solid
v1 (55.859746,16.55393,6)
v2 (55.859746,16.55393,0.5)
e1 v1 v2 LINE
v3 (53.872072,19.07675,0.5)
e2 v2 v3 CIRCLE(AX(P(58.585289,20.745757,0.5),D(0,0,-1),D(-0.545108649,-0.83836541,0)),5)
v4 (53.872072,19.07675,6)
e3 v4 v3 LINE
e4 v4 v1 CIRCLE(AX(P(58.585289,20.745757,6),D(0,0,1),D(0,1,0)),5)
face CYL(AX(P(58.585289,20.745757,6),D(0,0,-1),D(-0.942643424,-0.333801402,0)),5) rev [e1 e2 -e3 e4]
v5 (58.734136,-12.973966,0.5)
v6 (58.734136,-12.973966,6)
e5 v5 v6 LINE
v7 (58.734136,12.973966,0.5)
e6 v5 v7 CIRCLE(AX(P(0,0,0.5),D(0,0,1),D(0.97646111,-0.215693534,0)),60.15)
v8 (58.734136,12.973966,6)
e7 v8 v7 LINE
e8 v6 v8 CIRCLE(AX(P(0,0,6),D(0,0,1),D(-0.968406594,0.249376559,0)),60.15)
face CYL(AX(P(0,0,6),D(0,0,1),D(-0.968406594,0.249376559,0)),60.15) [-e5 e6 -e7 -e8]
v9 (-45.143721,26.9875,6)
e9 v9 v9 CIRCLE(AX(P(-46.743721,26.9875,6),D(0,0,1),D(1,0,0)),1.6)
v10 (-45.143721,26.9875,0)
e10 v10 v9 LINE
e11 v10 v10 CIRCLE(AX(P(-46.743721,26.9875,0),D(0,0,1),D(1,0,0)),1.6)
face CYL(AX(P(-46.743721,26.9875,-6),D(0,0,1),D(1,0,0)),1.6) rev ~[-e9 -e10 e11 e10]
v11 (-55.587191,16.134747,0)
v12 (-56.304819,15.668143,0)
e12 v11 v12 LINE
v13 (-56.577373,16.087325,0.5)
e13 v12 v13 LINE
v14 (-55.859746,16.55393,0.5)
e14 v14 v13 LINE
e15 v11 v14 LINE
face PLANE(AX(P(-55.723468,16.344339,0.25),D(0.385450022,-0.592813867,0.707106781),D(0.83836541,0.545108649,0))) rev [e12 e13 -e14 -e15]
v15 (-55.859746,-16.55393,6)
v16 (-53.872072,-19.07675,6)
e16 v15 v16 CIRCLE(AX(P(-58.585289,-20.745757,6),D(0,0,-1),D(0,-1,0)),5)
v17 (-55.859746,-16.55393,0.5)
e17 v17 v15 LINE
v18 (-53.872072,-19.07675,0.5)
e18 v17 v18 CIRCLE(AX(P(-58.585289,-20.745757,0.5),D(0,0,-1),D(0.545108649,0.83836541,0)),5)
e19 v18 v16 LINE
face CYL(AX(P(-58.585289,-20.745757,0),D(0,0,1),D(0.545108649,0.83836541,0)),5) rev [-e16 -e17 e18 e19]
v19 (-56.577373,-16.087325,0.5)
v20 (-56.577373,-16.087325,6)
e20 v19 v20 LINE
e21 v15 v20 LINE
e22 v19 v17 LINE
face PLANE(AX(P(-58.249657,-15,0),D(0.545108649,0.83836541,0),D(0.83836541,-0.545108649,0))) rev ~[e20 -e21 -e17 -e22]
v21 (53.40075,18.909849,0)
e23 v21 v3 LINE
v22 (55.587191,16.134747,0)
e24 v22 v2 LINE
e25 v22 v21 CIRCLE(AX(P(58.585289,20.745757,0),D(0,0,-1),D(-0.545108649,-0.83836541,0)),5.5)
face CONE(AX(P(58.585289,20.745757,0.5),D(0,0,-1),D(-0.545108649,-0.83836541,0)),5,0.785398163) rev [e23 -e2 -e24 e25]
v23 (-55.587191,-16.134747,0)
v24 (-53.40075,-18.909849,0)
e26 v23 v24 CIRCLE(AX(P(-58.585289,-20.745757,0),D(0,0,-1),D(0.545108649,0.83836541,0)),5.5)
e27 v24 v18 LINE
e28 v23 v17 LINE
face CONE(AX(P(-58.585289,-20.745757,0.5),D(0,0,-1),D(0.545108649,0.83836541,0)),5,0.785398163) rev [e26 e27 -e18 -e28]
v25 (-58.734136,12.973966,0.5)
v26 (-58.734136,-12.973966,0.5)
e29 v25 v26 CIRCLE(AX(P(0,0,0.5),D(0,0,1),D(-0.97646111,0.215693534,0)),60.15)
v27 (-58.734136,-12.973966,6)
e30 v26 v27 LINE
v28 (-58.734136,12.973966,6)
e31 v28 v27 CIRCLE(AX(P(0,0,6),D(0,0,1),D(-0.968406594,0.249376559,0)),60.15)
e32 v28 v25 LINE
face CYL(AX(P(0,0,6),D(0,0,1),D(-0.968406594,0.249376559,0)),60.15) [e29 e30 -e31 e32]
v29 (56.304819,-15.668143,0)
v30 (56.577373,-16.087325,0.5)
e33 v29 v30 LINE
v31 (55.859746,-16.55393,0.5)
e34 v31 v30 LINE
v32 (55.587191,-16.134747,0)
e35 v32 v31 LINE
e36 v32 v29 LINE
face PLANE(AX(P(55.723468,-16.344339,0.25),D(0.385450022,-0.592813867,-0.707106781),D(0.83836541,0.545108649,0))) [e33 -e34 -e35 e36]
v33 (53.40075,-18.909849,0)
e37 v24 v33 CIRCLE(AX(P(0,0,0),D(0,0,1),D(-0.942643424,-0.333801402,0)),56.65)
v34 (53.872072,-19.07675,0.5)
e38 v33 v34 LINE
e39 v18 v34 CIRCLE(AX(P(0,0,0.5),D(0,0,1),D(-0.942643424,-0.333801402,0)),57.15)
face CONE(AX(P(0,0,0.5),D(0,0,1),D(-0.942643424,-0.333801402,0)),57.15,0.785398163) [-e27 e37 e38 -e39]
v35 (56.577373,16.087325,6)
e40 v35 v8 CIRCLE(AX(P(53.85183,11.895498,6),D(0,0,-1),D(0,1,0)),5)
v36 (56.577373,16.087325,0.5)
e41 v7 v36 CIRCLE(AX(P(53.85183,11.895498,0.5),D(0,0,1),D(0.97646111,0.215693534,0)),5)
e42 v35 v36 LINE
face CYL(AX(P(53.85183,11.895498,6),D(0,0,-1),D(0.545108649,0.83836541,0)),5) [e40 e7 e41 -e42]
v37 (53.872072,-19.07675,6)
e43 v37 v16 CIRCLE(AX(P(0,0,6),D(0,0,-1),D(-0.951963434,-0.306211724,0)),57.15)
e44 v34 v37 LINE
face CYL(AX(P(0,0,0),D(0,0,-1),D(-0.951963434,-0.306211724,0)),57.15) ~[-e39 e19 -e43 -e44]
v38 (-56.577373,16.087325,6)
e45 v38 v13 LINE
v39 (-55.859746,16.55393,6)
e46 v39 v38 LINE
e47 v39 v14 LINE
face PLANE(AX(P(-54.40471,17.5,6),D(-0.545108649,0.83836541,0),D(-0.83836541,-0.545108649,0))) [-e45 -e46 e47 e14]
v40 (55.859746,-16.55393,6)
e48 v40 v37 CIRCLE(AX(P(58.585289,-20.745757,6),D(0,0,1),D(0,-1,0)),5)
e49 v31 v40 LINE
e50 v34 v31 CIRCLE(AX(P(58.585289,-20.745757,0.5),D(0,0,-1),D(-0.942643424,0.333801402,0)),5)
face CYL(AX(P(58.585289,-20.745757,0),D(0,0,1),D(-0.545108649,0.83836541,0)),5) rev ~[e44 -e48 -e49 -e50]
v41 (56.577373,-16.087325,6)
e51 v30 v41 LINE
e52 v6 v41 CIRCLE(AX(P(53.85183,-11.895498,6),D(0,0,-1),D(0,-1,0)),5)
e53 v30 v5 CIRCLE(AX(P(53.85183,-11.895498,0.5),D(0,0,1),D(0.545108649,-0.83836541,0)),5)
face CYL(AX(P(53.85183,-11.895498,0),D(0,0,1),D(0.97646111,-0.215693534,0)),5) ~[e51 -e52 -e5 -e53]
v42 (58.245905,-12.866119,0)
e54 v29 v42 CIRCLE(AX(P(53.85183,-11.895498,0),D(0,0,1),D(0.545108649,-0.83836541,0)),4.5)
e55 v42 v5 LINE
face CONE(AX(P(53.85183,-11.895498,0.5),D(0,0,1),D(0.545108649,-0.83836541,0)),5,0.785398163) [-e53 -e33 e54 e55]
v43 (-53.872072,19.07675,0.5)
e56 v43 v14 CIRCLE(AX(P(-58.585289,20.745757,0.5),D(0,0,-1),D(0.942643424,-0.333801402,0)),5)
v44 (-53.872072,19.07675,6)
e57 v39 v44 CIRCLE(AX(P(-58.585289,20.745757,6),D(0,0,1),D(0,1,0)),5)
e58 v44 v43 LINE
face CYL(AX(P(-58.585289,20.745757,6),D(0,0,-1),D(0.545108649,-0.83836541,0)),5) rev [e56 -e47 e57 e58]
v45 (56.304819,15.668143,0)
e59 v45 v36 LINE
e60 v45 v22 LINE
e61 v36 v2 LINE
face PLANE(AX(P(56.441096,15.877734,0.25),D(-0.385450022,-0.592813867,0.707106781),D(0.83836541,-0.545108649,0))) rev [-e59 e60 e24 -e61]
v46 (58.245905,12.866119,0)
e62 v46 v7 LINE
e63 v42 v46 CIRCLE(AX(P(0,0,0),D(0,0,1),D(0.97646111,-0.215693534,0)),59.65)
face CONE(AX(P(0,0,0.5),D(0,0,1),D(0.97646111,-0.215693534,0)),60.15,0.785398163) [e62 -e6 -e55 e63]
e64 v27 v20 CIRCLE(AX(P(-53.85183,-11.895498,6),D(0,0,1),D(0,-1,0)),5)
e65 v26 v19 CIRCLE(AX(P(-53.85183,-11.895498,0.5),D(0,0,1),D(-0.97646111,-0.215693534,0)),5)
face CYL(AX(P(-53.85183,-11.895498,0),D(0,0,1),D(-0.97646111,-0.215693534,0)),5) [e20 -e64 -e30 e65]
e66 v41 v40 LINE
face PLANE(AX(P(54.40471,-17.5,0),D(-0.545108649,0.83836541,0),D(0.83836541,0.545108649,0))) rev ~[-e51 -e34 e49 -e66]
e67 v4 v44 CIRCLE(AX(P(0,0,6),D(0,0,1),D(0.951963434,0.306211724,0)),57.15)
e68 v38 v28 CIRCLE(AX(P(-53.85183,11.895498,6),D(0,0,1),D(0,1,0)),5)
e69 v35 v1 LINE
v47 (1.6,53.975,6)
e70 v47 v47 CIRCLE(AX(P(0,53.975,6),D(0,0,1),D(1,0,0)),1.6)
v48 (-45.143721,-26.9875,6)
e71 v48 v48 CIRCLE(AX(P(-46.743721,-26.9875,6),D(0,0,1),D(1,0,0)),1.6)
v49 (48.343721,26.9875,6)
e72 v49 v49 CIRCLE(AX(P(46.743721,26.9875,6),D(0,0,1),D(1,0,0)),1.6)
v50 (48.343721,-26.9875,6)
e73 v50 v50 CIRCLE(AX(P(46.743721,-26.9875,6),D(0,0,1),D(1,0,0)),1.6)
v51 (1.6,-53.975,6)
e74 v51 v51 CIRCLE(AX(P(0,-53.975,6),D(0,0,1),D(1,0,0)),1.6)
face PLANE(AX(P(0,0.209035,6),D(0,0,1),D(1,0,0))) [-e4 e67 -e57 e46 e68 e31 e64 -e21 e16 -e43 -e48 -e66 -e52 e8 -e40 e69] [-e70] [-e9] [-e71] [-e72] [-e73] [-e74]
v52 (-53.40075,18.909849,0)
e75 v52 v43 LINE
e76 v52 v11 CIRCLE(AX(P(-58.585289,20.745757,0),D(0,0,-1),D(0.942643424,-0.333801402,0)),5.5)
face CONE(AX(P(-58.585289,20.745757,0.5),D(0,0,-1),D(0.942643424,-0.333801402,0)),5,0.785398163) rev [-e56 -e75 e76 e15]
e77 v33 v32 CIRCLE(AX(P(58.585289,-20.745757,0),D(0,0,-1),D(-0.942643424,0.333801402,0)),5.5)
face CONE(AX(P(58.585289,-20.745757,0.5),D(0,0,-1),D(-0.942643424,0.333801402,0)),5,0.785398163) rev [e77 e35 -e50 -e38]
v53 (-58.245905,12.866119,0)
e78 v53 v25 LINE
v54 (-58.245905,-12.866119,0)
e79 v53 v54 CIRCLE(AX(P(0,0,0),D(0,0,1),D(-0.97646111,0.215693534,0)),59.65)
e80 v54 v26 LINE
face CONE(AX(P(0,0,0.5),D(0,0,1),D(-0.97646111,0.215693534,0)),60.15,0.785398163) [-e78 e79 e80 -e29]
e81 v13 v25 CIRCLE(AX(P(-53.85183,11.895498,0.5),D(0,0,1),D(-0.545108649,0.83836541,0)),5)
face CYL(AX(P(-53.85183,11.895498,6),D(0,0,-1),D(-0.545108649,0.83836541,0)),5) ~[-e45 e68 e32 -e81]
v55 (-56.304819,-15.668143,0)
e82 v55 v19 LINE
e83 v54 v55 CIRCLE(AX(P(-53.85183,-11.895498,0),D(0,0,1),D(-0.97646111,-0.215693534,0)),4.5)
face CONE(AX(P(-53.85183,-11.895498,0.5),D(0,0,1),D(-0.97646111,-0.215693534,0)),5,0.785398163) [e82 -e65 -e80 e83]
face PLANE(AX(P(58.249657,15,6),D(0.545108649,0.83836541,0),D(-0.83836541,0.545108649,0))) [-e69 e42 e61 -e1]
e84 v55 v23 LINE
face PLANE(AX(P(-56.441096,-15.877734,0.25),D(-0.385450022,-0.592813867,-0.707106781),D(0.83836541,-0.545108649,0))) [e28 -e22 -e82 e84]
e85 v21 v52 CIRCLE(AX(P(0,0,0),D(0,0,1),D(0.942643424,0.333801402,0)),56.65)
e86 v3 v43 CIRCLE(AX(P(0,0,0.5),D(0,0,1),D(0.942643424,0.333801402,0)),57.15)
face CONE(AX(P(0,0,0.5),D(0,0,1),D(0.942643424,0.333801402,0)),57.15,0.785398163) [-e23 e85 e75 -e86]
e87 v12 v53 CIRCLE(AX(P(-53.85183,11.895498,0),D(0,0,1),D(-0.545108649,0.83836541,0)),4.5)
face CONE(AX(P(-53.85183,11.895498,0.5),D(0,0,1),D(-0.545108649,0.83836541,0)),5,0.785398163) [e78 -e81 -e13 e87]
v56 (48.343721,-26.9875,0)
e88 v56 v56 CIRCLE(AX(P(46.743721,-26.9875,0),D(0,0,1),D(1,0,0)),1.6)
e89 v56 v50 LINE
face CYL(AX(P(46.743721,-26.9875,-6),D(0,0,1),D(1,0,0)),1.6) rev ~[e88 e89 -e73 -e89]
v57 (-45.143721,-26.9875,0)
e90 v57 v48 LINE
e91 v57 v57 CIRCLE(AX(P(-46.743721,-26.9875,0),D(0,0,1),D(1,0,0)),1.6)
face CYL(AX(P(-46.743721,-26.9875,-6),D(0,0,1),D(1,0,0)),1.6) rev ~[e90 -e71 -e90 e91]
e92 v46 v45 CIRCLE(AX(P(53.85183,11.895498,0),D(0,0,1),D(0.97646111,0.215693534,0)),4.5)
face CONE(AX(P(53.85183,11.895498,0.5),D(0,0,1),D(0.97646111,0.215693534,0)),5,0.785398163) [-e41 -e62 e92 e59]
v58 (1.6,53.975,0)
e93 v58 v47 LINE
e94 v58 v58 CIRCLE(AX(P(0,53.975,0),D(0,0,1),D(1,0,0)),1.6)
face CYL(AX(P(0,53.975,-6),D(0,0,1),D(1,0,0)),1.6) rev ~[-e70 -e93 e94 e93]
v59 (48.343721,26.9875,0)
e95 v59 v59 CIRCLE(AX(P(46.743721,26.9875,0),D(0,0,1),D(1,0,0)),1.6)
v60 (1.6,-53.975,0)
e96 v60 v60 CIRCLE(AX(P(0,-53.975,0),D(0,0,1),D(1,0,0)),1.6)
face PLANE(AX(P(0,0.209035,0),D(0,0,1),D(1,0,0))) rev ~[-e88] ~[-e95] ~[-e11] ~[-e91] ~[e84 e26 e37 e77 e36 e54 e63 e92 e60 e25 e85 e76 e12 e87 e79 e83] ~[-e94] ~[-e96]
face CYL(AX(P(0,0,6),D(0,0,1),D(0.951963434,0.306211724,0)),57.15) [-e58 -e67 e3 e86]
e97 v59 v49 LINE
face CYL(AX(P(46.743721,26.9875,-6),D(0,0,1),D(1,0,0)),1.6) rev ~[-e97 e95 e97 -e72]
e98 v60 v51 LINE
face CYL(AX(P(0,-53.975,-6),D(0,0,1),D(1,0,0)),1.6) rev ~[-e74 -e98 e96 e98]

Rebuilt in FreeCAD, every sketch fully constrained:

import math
import FreeCAD as App
import Part
import Sketcher


def edges_at(feature, points):
    """Names of the edges that pass closest to the given points."""
    edges = feature.Shape.Edges
    near = lambda p: min(range(len(edges)), key=lambda i: edges[i].distToShape(Part.Vertex(*p))[0])
    return sorted({f"Edge{near(p) + 1}" for p in points})

doc = App.newDocument("Part")
body = doc.addObject("PartDesign::Body", "Body")

# Sketch on XY plane
sketch1 = body.newObject("Sketcher::SketchObject", "Sketch")
sketch1.AttachmentSupport = (doc.getObject("XY_Plane"), [""])
sketch1.MapMode = "FlatFace"
sketch1.AttachmentOffset = App.Placement(App.Vector(0, 0, 6), App.Rotation())
sketch1.addGeometry([
    Part.LineSegment(App.Vector(-54.4, 17.5, 0), App.Vector(-58.2, 15, 0)),
    Part.ArcOfCircle(Part.Circle(App.Vector(0, 0, 0), App.Vector(0, 0, 1), 60.1), math.radians(166), math.radians(374)),
    Part.LineSegment(App.Vector(58.2, 15, 0), App.Vector(54.4, 17.5, 0)),
    Part.ArcOfCircle(Part.Circle(App.Vector(0, 0, 0), App.Vector(0, 0, 1), 57.1), math.radians(18), math.radians(162)),
], False)
sketch1.addConstraint([
    Sketcher.Constraint("Coincident", 0, 2, 1, 1),
    Sketcher.Constraint("Coincident", 1, 2, 2, 1),
    Sketcher.Constraint("Coincident", 2, 2, 3, 1),
    Sketcher.Constraint("Coincident", 3, 2, 0, 1),
    Sketcher.Constraint("Coincident", 1, 3, -1, 1),
    Sketcher.Constraint("Coincident", 3, 3, -1, 1),
    Sketcher.Constraint("Horizontal", 0, 2, 1, 2),
    Sketcher.Constraint("Horizontal", 2, 2, 3, 2),
    Sketcher.Constraint("Radius", 1, 60.15),
    Sketcher.Constraint("Radius", 3, 57.15),
    Sketcher.Constraint("DistanceY", -1, 1, 0, 2, 15.0),
    Sketcher.Constraint("DistanceY", -1, 1, 2, 2, 17.5),
])
pad1 = body.newObject("PartDesign::Pad", "Pad")
pad1.Profile = sketch1
pad1.Length = 6
pad1.Reversed = True

# Sketch on XY plane
sketch2 = body.newObject("Sketcher::SketchObject", "Sketch001")
sketch2.AttachmentSupport = (doc.getObject("XY_Plane"), [""])
sketch2.MapMode = "FlatFace"
sketch2.addGeometry([
    Part.LineSegment(App.Vector(-58.2, -15, 0), App.Vector(-54.4, -17.5, 0)),
    Part.ArcOfCircle(Part.Circle(App.Vector(0, 0, 0), App.Vector(0, 0, 1), 57.1), math.radians(-162), math.radians(-18)),
    Part.LineSegment(App.Vector(54.4, -17.5, 0), App.Vector(58.2, -15, 0)),
    Part.ArcOfCircle(Part.Circle(App.Vector(0, 0, 0), App.Vector(0, 0, 1), 60.1), math.radians(-166), math.radians(-14)),
], False)
sketch2.addConstraint([
    Sketcher.Constraint("Coincident", 0, 2, 1, 1),
    Sketcher.Constraint("Coincident", 1, 2, 2, 1),
    Sketcher.Constraint("Coincident", 2, 2, 3, 2),
    Sketcher.Constraint("Coincident", 3, 1, 0, 1),
    Sketcher.Constraint("Coincident", 1, 3, -1, 1),
    Sketcher.Constraint("Coincident", 3, 3, -1, 1),
    Sketcher.Constraint("Horizontal", 0, 2, 1, 2),
    Sketcher.Constraint("Horizontal", 2, 2, 3, 1),
    Sketcher.Constraint("Radius", 1, 57.15),
    Sketcher.Constraint("Radius", 3, 60.15),
    Sketcher.Constraint("DistanceY", 2, 2, -1, 1, 15.0),
    Sketcher.Constraint("DistanceY", 0, 2, -1, 1, 17.5),
])
pocket1 = body.newObject("PartDesign::Pocket", "Pocket")
pocket1.Profile = sketch2
pocket1.Type = "ThroughAll"
pocket1.Reversed = True

# Sketch on XY plane
sketch3 = body.newObject("Sketcher::SketchObject", "Sketch002")
sketch3.AttachmentSupport = (doc.getObject("XY_Plane"), [""])
sketch3.MapMode = "FlatFace"
sketch3.addGeometry([
    Part.Circle(App.Vector(0, 54, 0), App.Vector(0, 0, 1), 1.6),  # 0
    Part.Circle(App.Vector(-46.7, -27, 0), App.Vector(0, 0, 1), 1.6),  # 1
    Part.Circle(App.Vector(46.7, 27, 0), App.Vector(0, 0, 1), 1.6),  # 2
    Part.Circle(App.Vector(46.7, -27, 0), App.Vector(0, 0, 1), 1.6),  # 3
    Part.Circle(App.Vector(0, -54, 0), App.Vector(0, 0, 1), 1.6),  # 4
    Part.Circle(App.Vector(-46.7, 27, 0), App.Vector(0, 0, 1), 1.6),  # 5
], False)
sketch3.addConstraint([
    Sketcher.Constraint("Equal", 0, 1),
    Sketcher.Constraint("Equal", 1, 2),
    Sketcher.Constraint("Equal", 2, 3),
    Sketcher.Constraint("Equal", 3, 4),
    Sketcher.Constraint("Equal", 4, 5),
    Sketcher.Constraint("Symmetric", 1, 3, 2, 3, -1, 1),
    Sketcher.Constraint("Symmetric", 0, 3, 4, 3, -1, 1),
    Sketcher.Constraint("Symmetric", 3, 3, 5, 3, -1, 1),
    Sketcher.Constraint("Symmetric", 1, 3, 3, 3, -2),
    Sketcher.Constraint("PointOnObject", 0, 3, -2),
    Sketcher.Constraint("Diameter", 0, 3.2),
    Sketcher.Constraint("DistanceY", 4, 3, 0, 3, 107.95),
    Sketcher.Constraint("DistanceY", 1, 3, 2, 3, 53.975),
    Sketcher.Constraint("DistanceX", 1, 3, -1, 1, 46.743721),
])
doc.recompute()
hole = body.newObject("PartDesign::Hole", "Hole")
hole.Profile = sketch3
hole.ThreadType = "None"
hole.Diameter = 3.2
hole.DepthType = "Dimension"
hole.Depth = 6
hole.DrillPoint = "Flat"
hole.Reversed = True
doc.recompute()

fillet = body.newObject("PartDesign::Fillet", "Fillet")
fillet.Base = (hole, edges_at(hole, [
    (-58.25, -15, 3),
    (58.25, -15, 3),
    (54.405, -17.5, 3),
    (-54.405, -17.5, 3),
    (54.405, 17.5, 3),
    (58.25, 15, 3),
    (-58.25, 15, 3),
    (-54.405, 17.5, 3),
]))
fillet.Radius = 5
doc.recompute()

chamfer = body.newObject("PartDesign::Chamfer", "Chamfer")
chamfer.Base = (fillet, edges_at(fillet, [
    (0, -57.15, 0),
    (-56.219, -16.321, 0),
    (60.15, 0, 0),
    (56.219, 16.321, 0),
    (56.219, -16.321, 0),
    (-60.15, 0, 0),
    (-56.219, 16.321, 0),
    (0, 57.15, 0),
    (-57.962, 14.743, 0),
    (57.962, -14.743, 0),
    (-57.962, -14.743, 0),
    (57.962, 14.743, 0),
    (-54.658, -17.651, 0),
    (54.658, -17.651, 0),
    (54.658, 17.651, 0),
    (-54.658, 17.651, 0),
]))
chamfer.Size = 0.5

doc.recompute()
